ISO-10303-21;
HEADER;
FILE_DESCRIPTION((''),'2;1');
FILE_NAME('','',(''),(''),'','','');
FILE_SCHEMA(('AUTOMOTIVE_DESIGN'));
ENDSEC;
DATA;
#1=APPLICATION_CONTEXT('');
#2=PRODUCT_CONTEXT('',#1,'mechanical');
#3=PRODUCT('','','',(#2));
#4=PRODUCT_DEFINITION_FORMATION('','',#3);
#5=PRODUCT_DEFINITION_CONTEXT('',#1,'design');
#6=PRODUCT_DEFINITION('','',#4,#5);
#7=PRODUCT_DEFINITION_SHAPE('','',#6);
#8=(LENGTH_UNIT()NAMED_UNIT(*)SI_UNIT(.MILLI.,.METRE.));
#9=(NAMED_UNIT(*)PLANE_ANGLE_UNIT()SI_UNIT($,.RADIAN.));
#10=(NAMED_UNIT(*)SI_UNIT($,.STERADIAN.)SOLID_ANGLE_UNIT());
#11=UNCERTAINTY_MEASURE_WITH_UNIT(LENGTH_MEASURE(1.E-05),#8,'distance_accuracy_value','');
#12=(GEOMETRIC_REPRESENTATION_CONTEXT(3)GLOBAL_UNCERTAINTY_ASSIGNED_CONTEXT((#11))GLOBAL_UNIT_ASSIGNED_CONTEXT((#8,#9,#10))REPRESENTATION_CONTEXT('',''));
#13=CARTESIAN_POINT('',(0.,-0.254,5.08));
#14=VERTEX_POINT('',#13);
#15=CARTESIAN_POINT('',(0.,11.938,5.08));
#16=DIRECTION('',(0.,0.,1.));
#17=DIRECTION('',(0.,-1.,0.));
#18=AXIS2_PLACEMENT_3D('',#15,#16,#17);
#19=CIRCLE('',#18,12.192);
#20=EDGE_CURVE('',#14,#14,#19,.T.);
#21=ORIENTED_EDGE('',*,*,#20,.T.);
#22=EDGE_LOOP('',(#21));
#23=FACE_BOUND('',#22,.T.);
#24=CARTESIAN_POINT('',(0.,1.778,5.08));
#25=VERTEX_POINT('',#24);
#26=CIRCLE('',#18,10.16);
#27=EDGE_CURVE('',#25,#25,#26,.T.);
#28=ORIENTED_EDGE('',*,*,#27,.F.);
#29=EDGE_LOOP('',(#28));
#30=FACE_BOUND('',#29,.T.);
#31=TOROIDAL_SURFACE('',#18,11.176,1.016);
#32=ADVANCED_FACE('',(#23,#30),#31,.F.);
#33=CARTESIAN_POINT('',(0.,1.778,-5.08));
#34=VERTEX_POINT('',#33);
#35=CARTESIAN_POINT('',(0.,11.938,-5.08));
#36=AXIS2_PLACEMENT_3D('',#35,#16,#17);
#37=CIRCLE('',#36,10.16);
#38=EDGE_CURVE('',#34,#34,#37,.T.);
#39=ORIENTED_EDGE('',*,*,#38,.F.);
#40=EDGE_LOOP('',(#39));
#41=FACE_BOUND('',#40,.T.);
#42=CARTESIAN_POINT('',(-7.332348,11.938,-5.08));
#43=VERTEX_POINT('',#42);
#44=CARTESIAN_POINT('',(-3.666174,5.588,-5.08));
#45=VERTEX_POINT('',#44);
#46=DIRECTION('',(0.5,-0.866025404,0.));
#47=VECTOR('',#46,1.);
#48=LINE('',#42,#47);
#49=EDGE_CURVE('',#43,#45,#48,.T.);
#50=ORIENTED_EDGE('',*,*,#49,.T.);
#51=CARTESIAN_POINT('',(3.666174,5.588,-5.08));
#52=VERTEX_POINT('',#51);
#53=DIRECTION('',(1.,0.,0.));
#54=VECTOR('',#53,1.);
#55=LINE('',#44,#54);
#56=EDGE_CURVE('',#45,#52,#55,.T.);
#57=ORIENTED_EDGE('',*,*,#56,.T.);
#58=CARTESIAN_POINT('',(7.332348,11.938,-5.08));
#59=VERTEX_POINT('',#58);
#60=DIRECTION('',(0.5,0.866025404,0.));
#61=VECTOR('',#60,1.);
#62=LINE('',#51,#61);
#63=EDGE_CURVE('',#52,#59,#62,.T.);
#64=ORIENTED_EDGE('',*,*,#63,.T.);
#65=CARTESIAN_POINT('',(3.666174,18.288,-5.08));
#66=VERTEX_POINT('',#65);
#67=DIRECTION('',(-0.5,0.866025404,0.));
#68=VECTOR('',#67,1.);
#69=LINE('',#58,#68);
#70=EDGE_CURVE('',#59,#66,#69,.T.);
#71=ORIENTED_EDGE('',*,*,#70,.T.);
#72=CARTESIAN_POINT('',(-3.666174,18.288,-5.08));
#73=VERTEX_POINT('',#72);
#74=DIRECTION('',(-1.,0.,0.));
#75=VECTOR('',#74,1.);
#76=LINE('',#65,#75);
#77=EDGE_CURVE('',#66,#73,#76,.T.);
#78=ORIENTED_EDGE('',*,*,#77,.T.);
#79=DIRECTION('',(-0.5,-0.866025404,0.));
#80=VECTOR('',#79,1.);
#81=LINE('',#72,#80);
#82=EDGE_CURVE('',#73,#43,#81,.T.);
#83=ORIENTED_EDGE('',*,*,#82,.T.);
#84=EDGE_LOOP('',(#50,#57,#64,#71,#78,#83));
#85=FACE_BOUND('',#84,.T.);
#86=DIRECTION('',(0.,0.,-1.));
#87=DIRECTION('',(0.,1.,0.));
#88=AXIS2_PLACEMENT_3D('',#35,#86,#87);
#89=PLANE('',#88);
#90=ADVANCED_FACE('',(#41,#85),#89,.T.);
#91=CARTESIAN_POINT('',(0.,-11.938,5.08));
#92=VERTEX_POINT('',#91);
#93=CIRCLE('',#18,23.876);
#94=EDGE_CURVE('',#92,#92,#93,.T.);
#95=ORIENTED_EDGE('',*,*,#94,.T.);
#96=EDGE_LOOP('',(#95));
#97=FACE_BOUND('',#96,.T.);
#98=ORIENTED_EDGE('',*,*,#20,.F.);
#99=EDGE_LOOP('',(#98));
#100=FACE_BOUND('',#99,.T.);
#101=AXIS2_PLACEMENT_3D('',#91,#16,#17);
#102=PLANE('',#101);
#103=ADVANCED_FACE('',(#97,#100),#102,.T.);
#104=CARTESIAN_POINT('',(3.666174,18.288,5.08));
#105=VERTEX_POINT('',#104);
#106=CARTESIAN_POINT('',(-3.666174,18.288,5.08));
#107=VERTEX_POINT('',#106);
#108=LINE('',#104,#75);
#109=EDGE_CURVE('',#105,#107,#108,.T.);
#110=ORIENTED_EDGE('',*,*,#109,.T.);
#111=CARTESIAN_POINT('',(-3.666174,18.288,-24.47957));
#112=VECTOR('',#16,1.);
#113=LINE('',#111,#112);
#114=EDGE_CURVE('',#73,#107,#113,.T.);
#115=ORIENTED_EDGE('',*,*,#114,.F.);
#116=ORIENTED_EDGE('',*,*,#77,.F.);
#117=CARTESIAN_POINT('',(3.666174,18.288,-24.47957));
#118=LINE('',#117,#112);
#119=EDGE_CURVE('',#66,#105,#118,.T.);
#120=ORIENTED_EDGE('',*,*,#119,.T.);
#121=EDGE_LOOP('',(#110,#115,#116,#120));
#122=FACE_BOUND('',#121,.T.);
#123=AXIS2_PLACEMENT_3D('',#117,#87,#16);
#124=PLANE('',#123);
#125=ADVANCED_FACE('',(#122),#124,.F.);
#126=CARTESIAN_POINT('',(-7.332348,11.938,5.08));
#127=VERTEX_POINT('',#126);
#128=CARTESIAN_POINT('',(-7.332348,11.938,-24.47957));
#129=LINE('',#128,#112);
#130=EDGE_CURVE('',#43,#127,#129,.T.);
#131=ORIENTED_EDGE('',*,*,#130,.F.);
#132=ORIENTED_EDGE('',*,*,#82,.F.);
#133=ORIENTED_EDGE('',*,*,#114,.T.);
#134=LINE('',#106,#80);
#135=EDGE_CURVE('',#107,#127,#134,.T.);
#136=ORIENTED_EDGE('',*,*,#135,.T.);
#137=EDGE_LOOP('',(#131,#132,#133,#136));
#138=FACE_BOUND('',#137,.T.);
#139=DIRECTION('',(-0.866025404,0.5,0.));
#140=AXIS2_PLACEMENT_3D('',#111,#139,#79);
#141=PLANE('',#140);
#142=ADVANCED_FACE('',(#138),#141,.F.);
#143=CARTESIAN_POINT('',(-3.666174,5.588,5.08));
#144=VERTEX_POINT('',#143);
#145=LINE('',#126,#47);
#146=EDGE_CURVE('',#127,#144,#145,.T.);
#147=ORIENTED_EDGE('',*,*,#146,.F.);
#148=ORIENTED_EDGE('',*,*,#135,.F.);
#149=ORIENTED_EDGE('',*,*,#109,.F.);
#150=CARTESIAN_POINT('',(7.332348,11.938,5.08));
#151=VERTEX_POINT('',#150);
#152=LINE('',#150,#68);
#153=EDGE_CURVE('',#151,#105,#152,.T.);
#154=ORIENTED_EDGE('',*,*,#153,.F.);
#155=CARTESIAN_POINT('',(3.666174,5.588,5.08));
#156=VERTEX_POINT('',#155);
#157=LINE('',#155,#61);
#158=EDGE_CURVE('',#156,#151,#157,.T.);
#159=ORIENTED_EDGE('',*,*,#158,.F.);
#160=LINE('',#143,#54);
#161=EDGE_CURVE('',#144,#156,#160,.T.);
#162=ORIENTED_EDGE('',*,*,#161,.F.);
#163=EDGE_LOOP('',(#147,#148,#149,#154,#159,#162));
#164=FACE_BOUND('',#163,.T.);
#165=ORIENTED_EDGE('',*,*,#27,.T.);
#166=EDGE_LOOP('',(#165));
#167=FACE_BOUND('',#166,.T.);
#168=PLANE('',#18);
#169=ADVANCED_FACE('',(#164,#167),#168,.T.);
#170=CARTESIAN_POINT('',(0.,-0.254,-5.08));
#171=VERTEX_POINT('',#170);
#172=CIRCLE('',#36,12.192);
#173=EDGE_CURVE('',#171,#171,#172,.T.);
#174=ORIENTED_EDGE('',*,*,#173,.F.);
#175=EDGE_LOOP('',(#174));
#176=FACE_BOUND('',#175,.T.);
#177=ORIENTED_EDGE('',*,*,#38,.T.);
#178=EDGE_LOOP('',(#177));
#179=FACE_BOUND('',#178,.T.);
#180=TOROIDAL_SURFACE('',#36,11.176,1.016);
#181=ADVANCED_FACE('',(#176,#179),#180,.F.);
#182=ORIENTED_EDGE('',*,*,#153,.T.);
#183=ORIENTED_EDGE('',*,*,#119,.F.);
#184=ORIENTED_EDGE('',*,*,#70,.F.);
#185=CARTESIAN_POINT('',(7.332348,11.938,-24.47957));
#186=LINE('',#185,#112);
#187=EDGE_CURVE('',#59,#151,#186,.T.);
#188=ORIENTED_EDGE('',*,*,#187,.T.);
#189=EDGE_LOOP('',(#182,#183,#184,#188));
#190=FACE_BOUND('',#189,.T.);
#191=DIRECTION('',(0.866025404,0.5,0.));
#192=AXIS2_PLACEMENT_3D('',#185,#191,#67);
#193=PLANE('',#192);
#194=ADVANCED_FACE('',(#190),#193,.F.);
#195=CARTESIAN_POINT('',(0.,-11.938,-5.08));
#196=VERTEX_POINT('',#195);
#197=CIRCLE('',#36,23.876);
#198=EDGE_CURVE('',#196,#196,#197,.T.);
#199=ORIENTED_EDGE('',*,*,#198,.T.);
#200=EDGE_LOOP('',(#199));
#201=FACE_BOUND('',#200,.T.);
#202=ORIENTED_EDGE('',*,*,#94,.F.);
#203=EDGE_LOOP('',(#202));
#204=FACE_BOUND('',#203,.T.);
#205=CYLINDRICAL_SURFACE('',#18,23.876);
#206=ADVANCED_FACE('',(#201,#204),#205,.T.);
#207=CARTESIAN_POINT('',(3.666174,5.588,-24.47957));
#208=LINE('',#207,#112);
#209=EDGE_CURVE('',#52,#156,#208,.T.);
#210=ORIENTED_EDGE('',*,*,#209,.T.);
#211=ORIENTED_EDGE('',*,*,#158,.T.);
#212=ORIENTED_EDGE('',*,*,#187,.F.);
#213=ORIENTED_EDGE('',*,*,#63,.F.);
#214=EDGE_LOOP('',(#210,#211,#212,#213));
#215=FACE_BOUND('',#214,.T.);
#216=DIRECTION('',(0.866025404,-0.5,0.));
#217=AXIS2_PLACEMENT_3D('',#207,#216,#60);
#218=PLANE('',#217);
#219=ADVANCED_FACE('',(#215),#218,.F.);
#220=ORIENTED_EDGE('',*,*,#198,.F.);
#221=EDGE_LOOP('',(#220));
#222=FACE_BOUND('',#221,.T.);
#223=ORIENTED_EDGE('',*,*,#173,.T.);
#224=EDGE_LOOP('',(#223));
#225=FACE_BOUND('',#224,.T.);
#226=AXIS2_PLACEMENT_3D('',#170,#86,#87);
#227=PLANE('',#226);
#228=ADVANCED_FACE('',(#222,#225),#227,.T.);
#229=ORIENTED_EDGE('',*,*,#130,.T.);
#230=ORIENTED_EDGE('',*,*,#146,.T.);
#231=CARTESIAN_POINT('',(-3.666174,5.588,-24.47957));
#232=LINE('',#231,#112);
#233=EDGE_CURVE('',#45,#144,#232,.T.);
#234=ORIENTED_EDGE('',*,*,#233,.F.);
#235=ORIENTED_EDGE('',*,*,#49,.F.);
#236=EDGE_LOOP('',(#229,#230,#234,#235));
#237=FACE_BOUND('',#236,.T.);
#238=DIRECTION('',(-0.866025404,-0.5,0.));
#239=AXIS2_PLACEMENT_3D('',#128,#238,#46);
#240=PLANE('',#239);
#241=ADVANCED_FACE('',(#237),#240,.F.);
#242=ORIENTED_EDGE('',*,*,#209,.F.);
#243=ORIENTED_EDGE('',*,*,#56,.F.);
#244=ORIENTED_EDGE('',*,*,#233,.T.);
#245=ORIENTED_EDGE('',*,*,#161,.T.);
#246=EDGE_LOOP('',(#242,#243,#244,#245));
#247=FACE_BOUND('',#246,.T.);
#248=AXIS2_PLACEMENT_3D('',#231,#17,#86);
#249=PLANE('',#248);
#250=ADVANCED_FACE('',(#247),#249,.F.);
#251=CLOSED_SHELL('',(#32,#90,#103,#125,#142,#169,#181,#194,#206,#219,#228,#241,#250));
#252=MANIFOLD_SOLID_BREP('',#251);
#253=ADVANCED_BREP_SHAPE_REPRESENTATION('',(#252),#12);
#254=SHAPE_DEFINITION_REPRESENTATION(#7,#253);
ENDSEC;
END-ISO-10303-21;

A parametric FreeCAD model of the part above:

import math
import FreeCAD as App
import Part
import Sketcher

V = App.Vector
Q = App.Units.Quantity

doc = App.newDocument("Part")
body = doc.addObject("PartDesign::Body", "Body")

# Sketch on YZ plane
sketch1 = body.newObject("Sketcher::SketchObject", "Sketch")
sketch1.AttachmentSupport = (doc.getObject("YZ_Plane"), [""])
sketch1.MapMode = "FlatFace"
sketch1.addGeometry([
    Part.LineSegment(V(-11.9, 5.1, 0), V(-11.9, -5.1, 0)),  # 0
    Part.LineSegment(V(-11.9, -5.1, 0), V(-0.3, -5.1, 0)),  # 1
    Part.ArcOfCircle(Part.Circle(V(0.8, -5.1, 0), V(0, 0, 1), 1), math.radians(0), math.radians(180)),  # 2
    Part.LineSegment(V(1.8, -5.1, 0), V(11.9, -5.1, 0)),  # 3
    Part.LineSegment(V(11.9, -5.1, 0), V(11.9, 5.1, 0)),  # 4
    Part.LineSegment(V(11.9, 5.1, 0), V(1.8, 5.1, 0)),  # 5
    Part.ArcOfCircle(Part.Circle(V(0.8, 5.1, 0), V(0, 0, 1), 1), math.radians(180), math.radians(360)),  # 6
    Part.LineSegment(V(-0.3, 5.1, 0), V(-11.9, 5.1, 0)),  # 7
], False)
sketch1.addGeometry(Part.LineSegment(V(11.9, 5.1, 0), V(11.9, -5.1, 0)), True)  # axis
sketch1.addConstraint([
    Sketcher.Constraint("Coincident", 0, 2, 1, 1),
    Sketcher.Constraint("Coincident", 1, 2, 2, 2),
    Sketcher.Constraint("Coincident", 2, 1, 3, 1),
    Sketcher.Constraint("Coincident", 3, 2, 4, 1),
    Sketcher.Constraint("Coincident", 4, 2, 5, 1),
    Sketcher.Constraint("Coincident", 5, 2, 6, 2),
    Sketcher.Constraint("Coincident", 6, 1, 7, 1),
    Sketcher.Constraint("Coincident", 7, 2, 0, 1),
    Sketcher.Constraint("Vertical", 0),
    Sketcher.Constraint("Horizontal", 1),
    Sketcher.Constraint("Horizontal", 3),
    Sketcher.Constraint("Vertical", 4),
    Sketcher.Constraint("Horizontal", 5),
    Sketcher.Constraint("Horizontal", 7),
    Sketcher.Constraint("Vertical", 8),
    Sketcher.Constraint("Coincident", 8, 1, 4, 2),
    Sketcher.Constraint("Equal", 2, 6),
    Sketcher.Constraint("Symmetric", 0, 2, 4, 2, -1, 1),
    Sketcher.Constraint("Symmetric", 2, 3, 6, 3, -1),
    Sketcher.Constraint("Horizontal", 2, 3, 0, 2),
    Sketcher.Constraint("Horizontal", 1, 2, 2, 1),
    Sketcher.Constraint("Horizontal", 5, 2, 6, 1),
    Sketcher.Constraint("Horizontal", 2, 1, 8, 2),
    Sketcher.Constraint("Equal", 5, 0),
    Sketcher.Constraint("Radius", 2, Q("0.04 in")),
    Sketcher.Constraint("DistanceX", 3, 1, 3, 2, Q("0.4 in")),
    Sketcher.Constraint("DistanceX", 1, 1, 1, 2, Q("0.46 in")),
])
revolution = body.newObject("PartDesign::Revolution", "Revolution")
revolution.Profile = sketch1
revolution.ReferenceAxis = (sketch1, ["Axis0"])
revolution.Angle = 360

# Sketch on XY plane
sketch2 = body.newObject("Sketcher::SketchObject", "Sketch001")
sketch2.AttachmentSupport = (doc.getObject("XY_Plane"), [""])
sketch2.MapMode = "FlatFace"
sketch2.AttachmentOffset = App.Placement(V(0, 0, 0.2 * 25.4), App.Rotation())
sketch2.addGeometry([
    Part.LineSegment(V(7, 12, 0), V(4, 18, 0)),  # 0
    Part.LineSegment(V(4, 18, 0), V(-4, 18, 0)),  # 1
    Part.LineSegment(V(-4, 18, 0), V(-7, 12, 0)),  # 2
    Part.LineSegment(V(-7, 12, 0), V(-4, 6, 0)),  # 3
    Part.LineSegment(V(-4, 6, 0), V(4, 6, 0)),  # 4
    Part.LineSegment(V(4, 6, 0), V(7, 12, 0)),  # 5
], False)
sketch2.addConstraint([
    Sketcher.Constraint("Coincident", 0, 2, 1, 1),
    Sketcher.Constraint("Coincident", 1, 2, 2, 1),
    Sketcher.Constraint("Coincident", 2, 2, 3, 1),
    Sketcher.Constraint("Coincident", 3, 2, 4, 1),
    Sketcher.Constraint("Coincident", 4, 2, 5, 1),
    Sketcher.Constraint("Coincident", 5, 2, 0, 1),
    Sketcher.Constraint("Horizontal", 1),
    Sketcher.Constraint("Horizontal", 4),
    Sketcher.Constraint("Symmetric", 2, 2, 5, 2, -2),
    Sketcher.Constraint("Parallel", 0, 3),
    Sketcher.Constraint("Parallel", 2, 5),
    Sketcher.Constraint("Vertical", 1, 2, 3, 2),
    Sketcher.Constraint("Vertical", 0, 2, 4, 2),
    Sketcher.Constraint("Angle", 0, Q("120 deg")),
    Sketcher.Constraint("DistanceY", 3, 2, 1, 2, Q("0.5 in")),
    Sketcher.Constraint("DistanceY", -1, 1, 0, 2, Q("0.72 in")),
    Sketcher.Constraint("DistanceX", 1, 2, 1, 1, Q("7.332348 mm")),
])
pocket1 = body.newObject("PartDesign::Pocket", "Pocket")
pocket1.Profile = sketch2
pocket1.Length = Q("0.4 in")

doc.recompute()
